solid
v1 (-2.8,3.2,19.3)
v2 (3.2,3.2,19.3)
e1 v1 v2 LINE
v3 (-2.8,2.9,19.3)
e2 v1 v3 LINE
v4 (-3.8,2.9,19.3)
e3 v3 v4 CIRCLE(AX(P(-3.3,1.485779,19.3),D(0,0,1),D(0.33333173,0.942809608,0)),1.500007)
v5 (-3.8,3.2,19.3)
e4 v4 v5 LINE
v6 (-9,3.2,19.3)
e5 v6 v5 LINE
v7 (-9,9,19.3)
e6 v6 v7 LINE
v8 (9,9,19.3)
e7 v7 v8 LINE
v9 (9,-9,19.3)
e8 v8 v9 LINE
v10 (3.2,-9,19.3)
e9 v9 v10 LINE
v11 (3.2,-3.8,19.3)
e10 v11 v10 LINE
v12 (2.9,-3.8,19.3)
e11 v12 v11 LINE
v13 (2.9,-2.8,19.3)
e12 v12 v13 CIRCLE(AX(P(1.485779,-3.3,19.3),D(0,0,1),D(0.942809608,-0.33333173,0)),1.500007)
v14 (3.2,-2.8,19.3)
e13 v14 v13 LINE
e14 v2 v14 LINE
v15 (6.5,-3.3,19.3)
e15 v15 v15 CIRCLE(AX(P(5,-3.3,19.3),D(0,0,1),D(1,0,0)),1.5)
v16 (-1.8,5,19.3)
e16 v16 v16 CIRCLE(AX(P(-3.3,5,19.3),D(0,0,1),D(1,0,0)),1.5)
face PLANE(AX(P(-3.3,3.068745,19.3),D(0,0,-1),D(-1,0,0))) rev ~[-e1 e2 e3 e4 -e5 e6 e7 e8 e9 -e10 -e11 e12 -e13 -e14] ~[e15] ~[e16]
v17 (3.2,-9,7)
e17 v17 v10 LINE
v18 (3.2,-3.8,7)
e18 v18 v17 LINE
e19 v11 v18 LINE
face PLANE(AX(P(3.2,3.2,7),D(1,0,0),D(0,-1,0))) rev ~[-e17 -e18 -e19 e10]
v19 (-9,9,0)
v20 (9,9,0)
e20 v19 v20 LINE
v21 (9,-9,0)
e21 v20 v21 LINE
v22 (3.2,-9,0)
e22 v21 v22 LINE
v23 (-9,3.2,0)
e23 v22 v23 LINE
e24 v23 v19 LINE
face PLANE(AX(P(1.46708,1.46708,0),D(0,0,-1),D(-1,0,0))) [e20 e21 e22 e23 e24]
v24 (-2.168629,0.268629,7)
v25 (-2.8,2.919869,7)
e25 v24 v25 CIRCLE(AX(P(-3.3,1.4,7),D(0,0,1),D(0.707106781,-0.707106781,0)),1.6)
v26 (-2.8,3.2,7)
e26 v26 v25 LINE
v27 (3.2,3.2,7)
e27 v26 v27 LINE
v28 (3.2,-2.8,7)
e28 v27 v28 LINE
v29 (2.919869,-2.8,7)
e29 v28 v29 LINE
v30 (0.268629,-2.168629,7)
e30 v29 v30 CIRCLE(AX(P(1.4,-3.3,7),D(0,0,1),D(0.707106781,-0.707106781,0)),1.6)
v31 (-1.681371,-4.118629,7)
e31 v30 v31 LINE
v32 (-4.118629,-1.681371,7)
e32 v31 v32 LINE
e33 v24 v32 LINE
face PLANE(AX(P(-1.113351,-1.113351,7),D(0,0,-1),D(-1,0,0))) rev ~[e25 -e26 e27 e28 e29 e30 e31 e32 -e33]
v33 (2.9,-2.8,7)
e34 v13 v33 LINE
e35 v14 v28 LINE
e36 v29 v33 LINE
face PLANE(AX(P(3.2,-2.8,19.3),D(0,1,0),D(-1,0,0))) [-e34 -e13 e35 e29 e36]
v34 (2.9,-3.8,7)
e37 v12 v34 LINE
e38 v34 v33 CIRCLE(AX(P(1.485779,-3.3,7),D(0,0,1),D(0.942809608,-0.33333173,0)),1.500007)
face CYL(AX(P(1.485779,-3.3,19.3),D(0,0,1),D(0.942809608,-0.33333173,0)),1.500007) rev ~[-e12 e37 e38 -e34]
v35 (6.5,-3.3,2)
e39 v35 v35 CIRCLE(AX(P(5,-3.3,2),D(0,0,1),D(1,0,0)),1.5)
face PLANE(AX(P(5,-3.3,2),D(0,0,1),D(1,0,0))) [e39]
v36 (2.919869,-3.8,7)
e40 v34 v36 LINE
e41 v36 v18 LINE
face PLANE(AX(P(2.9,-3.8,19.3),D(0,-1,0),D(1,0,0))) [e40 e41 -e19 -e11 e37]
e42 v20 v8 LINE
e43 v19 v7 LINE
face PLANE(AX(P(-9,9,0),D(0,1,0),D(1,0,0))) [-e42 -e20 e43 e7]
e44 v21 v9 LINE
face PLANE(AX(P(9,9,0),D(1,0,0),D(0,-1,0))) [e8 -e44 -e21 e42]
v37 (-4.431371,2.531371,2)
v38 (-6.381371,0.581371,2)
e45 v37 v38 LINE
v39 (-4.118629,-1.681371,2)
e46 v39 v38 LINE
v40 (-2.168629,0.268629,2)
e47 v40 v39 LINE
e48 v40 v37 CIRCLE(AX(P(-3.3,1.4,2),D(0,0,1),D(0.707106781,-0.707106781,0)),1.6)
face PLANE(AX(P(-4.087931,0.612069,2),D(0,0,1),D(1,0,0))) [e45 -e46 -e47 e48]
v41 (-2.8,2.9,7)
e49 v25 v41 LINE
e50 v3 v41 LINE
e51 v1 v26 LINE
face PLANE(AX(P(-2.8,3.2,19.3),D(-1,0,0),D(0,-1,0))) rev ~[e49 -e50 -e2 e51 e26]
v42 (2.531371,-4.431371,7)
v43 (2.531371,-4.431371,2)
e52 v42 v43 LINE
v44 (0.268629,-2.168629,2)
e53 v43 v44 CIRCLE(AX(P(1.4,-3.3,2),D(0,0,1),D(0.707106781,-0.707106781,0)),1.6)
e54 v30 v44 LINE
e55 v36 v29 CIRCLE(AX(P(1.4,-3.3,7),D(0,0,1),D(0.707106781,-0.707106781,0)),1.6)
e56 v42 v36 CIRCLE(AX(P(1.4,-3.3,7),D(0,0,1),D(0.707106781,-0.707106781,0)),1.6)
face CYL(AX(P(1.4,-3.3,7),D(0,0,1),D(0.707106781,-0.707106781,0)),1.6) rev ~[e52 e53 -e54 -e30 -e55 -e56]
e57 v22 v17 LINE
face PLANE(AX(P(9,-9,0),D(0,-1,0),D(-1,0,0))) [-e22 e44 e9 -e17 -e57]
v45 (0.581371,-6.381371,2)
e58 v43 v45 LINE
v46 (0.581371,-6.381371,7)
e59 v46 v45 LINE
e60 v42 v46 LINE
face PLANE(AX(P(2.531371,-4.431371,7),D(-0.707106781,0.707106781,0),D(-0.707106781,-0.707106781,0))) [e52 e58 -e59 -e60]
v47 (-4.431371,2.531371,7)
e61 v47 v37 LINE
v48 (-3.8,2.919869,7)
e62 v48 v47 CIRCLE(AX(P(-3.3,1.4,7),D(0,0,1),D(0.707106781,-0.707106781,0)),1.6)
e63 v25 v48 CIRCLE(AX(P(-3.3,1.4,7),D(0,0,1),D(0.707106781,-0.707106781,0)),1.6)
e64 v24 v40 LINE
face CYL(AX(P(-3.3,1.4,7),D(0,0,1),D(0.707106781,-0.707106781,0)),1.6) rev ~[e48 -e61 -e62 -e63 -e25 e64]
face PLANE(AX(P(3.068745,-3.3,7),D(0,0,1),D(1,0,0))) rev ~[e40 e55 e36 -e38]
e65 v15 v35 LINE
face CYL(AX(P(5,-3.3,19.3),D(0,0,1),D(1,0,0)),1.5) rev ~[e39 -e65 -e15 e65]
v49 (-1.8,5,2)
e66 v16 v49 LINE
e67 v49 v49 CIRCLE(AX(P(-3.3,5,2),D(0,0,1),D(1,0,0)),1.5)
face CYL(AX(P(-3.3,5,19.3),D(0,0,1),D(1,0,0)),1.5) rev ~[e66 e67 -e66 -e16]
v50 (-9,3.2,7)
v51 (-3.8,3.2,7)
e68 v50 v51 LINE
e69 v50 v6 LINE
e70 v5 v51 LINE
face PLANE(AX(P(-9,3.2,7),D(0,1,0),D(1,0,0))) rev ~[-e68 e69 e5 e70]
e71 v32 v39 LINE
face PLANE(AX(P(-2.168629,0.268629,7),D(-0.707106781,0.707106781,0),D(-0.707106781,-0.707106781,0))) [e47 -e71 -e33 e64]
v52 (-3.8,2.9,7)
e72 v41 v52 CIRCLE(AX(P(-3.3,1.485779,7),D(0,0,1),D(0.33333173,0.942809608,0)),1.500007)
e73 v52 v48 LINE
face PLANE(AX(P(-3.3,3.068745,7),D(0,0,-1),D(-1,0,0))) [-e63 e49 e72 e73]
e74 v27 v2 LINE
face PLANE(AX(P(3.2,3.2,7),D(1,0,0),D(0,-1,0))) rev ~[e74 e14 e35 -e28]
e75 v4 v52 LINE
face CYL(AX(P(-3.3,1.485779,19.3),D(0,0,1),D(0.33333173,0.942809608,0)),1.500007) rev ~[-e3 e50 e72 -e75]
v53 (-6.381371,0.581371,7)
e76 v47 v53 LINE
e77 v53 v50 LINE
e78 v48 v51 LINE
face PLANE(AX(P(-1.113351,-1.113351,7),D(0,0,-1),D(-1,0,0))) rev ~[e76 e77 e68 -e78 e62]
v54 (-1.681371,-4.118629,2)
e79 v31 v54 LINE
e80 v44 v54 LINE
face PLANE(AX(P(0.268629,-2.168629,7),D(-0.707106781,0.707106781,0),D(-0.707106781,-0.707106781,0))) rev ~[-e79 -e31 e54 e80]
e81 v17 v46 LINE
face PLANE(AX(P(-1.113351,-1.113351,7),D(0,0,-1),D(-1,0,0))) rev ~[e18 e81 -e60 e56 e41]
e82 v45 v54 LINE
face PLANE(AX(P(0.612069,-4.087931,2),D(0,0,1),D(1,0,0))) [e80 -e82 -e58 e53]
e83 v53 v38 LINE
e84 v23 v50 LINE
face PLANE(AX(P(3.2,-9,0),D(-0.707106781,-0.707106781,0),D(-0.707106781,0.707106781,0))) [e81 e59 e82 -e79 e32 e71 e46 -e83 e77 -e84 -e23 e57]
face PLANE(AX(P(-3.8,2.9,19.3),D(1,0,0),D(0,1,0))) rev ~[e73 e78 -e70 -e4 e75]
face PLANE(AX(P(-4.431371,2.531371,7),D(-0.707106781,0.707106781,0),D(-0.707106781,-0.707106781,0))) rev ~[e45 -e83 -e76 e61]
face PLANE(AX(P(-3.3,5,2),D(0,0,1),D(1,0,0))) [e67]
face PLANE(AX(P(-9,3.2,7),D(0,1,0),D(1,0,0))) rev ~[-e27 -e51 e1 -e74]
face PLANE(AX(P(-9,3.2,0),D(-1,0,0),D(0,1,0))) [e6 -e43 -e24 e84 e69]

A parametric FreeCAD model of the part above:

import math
import FreeCAD as App
import Part
import Sketcher
from FreeCAD import Vector


def add_polygon(sketch, points):
    """Adds a closed chain of lines whose ends are joined by coincident constraints."""
    first, n = sketch.GeometryCount, len(points)
    for a, b in zip(points, points[1:] + points[:1]):
        sketch.addGeometry(Part.LineSegment(App.Vector(*a, 0), App.Vector(*b, 0)), False)
    for i in range(n):
        sketch.addConstraint(Sketcher.Constraint("Coincident", first + i, 2, first + (i + 1) % n, 1))

doc = App.newDocument("Part")
body = doc.addObject("PartDesign::Body", "Body")

# Sketch on XY plane
sketch1 = body.newObject("Sketcher::SketchObject", "Sketch")
sketch1.AttachmentSupport = (doc.getObject("XY_Plane"), [""])
sketch1.MapMode = "FlatFace"
add_polygon(sketch1, [(-9, 9), (-9, 3.2), (3.2, -9), (9, -9), (9, 9)])  # lines 0-4
sketch1.addConstraint([
    Sketcher.Constraint("Vertical", 0),
    Sketcher.Constraint("Horizontal", 2),
    Sketcher.Constraint("Vertical", 3),
    Sketcher.Constraint("Horizontal", 4),
    Sketcher.Constraint("Symmetric", 2, 2, 4, 2, -1, 1),
    Sketcher.Constraint("Equal", 2, 0),
    Sketcher.Constraint("Equal", 4, 3),
    Sketcher.Constraint("DistanceX", 4, 2, 4, 1, 18.0),
    Sketcher.Constraint("DistanceX", 2, 1, 2, 2, 5.8),
])
pad1 = body.newObject("PartDesign::Pad", "Pad")
pad1.Profile = sketch1
pad1.Length = 19.3

# Sketch on XY plane
sketch2 = body.newObject("Sketcher::SketchObject", "Sketch001")
sketch2.AttachmentSupport = (doc.getObject("XY_Plane"), [""])
sketch2.MapMode = "FlatFace"
sketch2.AttachmentOffset = App.Placement(Vector(0, 0, 7), App.Rotation())
add_polygon(sketch2, [(3.2, 3.2), (-9, 3.2), (3.2, -9)])  # lines 0-2
sketch2.addConstraint([
    Sketcher.Constraint("Horizontal", 0),
    Sketcher.Constraint("Vertical", 2),
    Sketcher.Constraint("Equal", 0, 2),
    Sketcher.Constraint("DistanceX", 0, 2, 0, 1, 12.2),
    Sketcher.Constraint("DistanceX", 0, 2, -1, 1, 9.0),
    Sketcher.Constraint("DistanceY", 1, 2, -1, 1, 9.0),
])
pocket1 = body.newObject("PartDesign::Pocket", "Pocket")
pocket1.Profile = sketch2
pocket1.Type = "ThroughAll"
pocket1.Reversed = True

# Sketch on XY plane
sketch3 = body.newObject("Sketcher::SketchObject", "Sketch002")
sketch3.AttachmentSupport = (doc.getObject("XY_Plane"), [""])
sketch3.MapMode = "FlatFace"
sketch3.AttachmentOffset = App.Placement(Vector(0, 0, 7), App.Rotation())
sketch3.addGeometry([
    Part.ArcOfCircle(Part.Circle(Vector(-3.3, 1.4, 0), Vector(0, 0, 1), 1.6), math.radians(-45), math.radians(135)),  # 0
    Part.LineSegment(Vector(-4.431371, 2.531371, 0), Vector(-6.694113, 0.268629, 0)),  # 1
    Part.LineSegment(Vector(-6.694113, 0.268629, 0), Vector(-4.431371, -1.994113, 0)),  # 2
    Part.LineSegment(Vector(-4.431371, -1.994113, 0), Vector(-2.168629, 0.268629, 0)),  # 3
    Part.ArcOfCircle(Part.Circle(Vector(1.4, -3.3, 0), Vector(0, 0, 1), 1.6), math.radians(-45), math.radians(135)),  # 4
    Part.LineSegment(Vector(0.268629, -2.168629, 0), Vector(-1.994113, -4.431371, 0)),  # 5
    Part.LineSegment(Vector(-1.994113, -4.431371, 0), Vector(0.268629, -6.694113, 0)),  # 6
    Part.LineSegment(Vector(0.268629, -6.694113, 0), Vector(2.531371, -4.431371, 0)),  # 7
], False)
sketch3.addConstraint([
    Sketcher.Constraint("Tangent", 0, 2, 1, 1),
    Sketcher.Constraint("Coincident", 1, 2, 2, 1),
    Sketcher.Constraint("Coincident", 2, 2, 3, 1),
    Sketcher.Constraint("Tangent", 3, 2, 0, 1),
    Sketcher.Constraint("Tangent", 4, 2, 5, 1),
    Sketcher.Constraint("Coincident", 5, 2, 6, 1),
    Sketcher.Constraint("Coincident", 6, 2, 7, 1),
    Sketcher.Constraint("Tangent", 7, 2, 4, 1),
    Sketcher.Constraint("Equal", 0, 4),
    Sketcher.Constraint("Perpendicular", 1, 2),
    Sketcher.Constraint("Perpendicular", 2, 3),
    Sketcher.Constraint("Parallel", 3, 5),
    Sketcher.Constraint("Perpendicular", 5, 6),
    Sketcher.Constraint("Perpendicular", 6, 7),
    Sketcher.Constraint("Horizontal", 1, 2, 3, 2),
    Sketcher.Constraint("Horizontal", 5, 2, 7, 2),
    Sketcher.Constraint("Vertical", 0, 2, 2, 2),
    Sketcher.Constraint("Radius", 0, 1.6),
    Sketcher.Constraint("DistanceX", 0, 3, -1, 1, 3.3),
    Sketcher.Constraint("DistanceY", -1, 1, 0, 3, 1.4),
    Sketcher.Constraint("DistanceX", -1, 1, 4, 3, 1.4),
    Sketcher.Constraint("DistanceY", 4, 3, -1, 1, 3.3),
])
pocket2 = body.newObject("PartDesign::Pocket", "Pocket001")
pocket2.Profile = sketch3
pocket2.Length = 5

# Sketch on XY plane
sketch4 = body.newObject("Sketcher::SketchObject", "Sketch003")
sketch4.AttachmentSupport = (doc.getObject("XY_Plane"), [""])
sketch4.MapMode = "FlatFace"
sketch4.AttachmentOffset = App.Placement(Vector(0, 0, 19.3), App.Rotation())
sketch4.addGeometry([
    Part.Circle(Vector(-3.3, 5, 0), Vector(0, 0, 1), 1.5),
    Part.Circle(Vector(5, -3.3, 0), Vector(0, 0, 1), 1.5),
], False)
sketch4.addConstraint([
    Sketcher.Constraint("Equal", 0, 1),
    Sketcher.Constraint("Diameter", 0, 3.0),
    Sketcher.Constraint("DistanceY", -1, 1, 0, 3, 5.0),
    Sketcher.Constraint("DistanceX", -1, 1, 1, 3, 5.0),
    Sketcher.Constraint("DistanceX", 0, 3, -1, 1, 3.3),
    Sketcher.Constraint("DistanceY", 1, 3, -1, 1, 3.3),
])
pocket3 = body.newObject("PartDesign::Pocket", "Pocket002")
pocket3.Profile = sketch4
pocket3.Length = 17.3

# Sketch on XY plane
sketch5 = body.newObject("Sketcher::SketchObject", "Sketch004")
sketch5.AttachmentSupport = (doc.getObject("XY_Plane"), [""])
sketch5.MapMode = "FlatFace"
sketch5.AttachmentOffset = App.Placement(Vector(0, 0, 19.3), App.Rotation())
sketch5.addGeometry([
    Part.LineSegment(Vector(-2.8, 3.2, 0), Vector(-3.8, 3.2, 0)),  # 0
    Part.LineSegment(Vector(-3.8, 3.2, 0), Vector(-3.8, 2.9, 0)),  # 1
    Part.ArcOfCircle(Part.Circle(Vector(-3.3, 1.485779, 0), Vector(0, 0, 1), 1.500007), math.radians(70.528877), math.radians(109.471123)),  # 2
    Part.LineSegment(Vector(-2.8, 2.9, 0), Vector(-2.8, 3.2, 0)),  # 3
    Part.LineSegment(Vector(3.2, -2.8, 0), Vector(2.9, -2.8, 0)),  # 4
    Part.ArcOfCircle(Part.Circle(Vector(1.485779, -3.3, 0), Vector(0, 0, 1), 1.500007), math.radians(-19.471123), math.radians(19.471123)),  # 5
    Part.LineSegment(Vector(2.9, -3.8, 0), Vector(3.2, -3.8, 0)),  # 6
    Part.LineSegment(Vector(3.2, -3.8, 0), Vector(3.2, -2.8, 0)),  # 7
], False)
sketch5.addConstraint([
    Sketcher.Constraint("Coincident", 0, 2, 1, 1),
    Sketcher.Constraint("Coincident", 1, 2, 2, 2),
    Sketcher.Constraint("Coincident", 2, 1, 3, 1),
    Sketcher.Constraint("Coincident", 3, 2, 0, 1),
    Sketcher.Constraint("Coincident", 4, 2, 5, 2),
    Sketcher.Constraint("Coincident", 5, 1, 6, 1),
    Sketcher.Constraint("Coincident", 6, 2, 7, 1),
    Sketcher.Constraint("Coincident", 7, 2, 4, 1),
    Sketcher.Constraint("Horizontal", 0),
    Sketcher.Constraint("Vertical", 1),
    Sketcher.Constraint("Vertical", 3),
    Sketcher.Constraint("Horizontal", 4),
    Sketcher.Constraint("Horizontal", 6),
    Sketcher.Constraint("Vertical", 7),
    Sketcher.Constraint("Equal", 2, 5),
    Sketcher.Constraint("Horizontal", 1, 2, 2, 1),
    Sketcher.Constraint("Vertical", 4, 2, 5, 1),
    Sketcher.Constraint("Equal", 6, 1),
    Sketcher.Constraint("Equal", 0, 7),
    Sketcher.Constraint("DistanceX", 0, 2, 0, 1, 1.0),
    Sketcher.Constraint("DistanceX", 4, 2, 4, 1, 0.3),
    Sketcher.Constraint("DistanceY", 4, 2, 3, 2, 6.0),
    Sketcher.Constraint("DistanceX", 2, 1, 6, 2, 6.0),
    Sketcher.Constraint("DistanceX", 2, 3, -1, 1, 3.3),
    Sketcher.Constraint("DistanceY", 5, 3, -1, 1, 3.3),
    Sketcher.Constraint("Radius", 2, 1.500007),
])
pad2 = body.newObject("PartDesign::Pad", "Pad001")
pad2.Profile = sketch5
pad2.Length = 12.3
pad2.Reversed = True

doc.recompute()
